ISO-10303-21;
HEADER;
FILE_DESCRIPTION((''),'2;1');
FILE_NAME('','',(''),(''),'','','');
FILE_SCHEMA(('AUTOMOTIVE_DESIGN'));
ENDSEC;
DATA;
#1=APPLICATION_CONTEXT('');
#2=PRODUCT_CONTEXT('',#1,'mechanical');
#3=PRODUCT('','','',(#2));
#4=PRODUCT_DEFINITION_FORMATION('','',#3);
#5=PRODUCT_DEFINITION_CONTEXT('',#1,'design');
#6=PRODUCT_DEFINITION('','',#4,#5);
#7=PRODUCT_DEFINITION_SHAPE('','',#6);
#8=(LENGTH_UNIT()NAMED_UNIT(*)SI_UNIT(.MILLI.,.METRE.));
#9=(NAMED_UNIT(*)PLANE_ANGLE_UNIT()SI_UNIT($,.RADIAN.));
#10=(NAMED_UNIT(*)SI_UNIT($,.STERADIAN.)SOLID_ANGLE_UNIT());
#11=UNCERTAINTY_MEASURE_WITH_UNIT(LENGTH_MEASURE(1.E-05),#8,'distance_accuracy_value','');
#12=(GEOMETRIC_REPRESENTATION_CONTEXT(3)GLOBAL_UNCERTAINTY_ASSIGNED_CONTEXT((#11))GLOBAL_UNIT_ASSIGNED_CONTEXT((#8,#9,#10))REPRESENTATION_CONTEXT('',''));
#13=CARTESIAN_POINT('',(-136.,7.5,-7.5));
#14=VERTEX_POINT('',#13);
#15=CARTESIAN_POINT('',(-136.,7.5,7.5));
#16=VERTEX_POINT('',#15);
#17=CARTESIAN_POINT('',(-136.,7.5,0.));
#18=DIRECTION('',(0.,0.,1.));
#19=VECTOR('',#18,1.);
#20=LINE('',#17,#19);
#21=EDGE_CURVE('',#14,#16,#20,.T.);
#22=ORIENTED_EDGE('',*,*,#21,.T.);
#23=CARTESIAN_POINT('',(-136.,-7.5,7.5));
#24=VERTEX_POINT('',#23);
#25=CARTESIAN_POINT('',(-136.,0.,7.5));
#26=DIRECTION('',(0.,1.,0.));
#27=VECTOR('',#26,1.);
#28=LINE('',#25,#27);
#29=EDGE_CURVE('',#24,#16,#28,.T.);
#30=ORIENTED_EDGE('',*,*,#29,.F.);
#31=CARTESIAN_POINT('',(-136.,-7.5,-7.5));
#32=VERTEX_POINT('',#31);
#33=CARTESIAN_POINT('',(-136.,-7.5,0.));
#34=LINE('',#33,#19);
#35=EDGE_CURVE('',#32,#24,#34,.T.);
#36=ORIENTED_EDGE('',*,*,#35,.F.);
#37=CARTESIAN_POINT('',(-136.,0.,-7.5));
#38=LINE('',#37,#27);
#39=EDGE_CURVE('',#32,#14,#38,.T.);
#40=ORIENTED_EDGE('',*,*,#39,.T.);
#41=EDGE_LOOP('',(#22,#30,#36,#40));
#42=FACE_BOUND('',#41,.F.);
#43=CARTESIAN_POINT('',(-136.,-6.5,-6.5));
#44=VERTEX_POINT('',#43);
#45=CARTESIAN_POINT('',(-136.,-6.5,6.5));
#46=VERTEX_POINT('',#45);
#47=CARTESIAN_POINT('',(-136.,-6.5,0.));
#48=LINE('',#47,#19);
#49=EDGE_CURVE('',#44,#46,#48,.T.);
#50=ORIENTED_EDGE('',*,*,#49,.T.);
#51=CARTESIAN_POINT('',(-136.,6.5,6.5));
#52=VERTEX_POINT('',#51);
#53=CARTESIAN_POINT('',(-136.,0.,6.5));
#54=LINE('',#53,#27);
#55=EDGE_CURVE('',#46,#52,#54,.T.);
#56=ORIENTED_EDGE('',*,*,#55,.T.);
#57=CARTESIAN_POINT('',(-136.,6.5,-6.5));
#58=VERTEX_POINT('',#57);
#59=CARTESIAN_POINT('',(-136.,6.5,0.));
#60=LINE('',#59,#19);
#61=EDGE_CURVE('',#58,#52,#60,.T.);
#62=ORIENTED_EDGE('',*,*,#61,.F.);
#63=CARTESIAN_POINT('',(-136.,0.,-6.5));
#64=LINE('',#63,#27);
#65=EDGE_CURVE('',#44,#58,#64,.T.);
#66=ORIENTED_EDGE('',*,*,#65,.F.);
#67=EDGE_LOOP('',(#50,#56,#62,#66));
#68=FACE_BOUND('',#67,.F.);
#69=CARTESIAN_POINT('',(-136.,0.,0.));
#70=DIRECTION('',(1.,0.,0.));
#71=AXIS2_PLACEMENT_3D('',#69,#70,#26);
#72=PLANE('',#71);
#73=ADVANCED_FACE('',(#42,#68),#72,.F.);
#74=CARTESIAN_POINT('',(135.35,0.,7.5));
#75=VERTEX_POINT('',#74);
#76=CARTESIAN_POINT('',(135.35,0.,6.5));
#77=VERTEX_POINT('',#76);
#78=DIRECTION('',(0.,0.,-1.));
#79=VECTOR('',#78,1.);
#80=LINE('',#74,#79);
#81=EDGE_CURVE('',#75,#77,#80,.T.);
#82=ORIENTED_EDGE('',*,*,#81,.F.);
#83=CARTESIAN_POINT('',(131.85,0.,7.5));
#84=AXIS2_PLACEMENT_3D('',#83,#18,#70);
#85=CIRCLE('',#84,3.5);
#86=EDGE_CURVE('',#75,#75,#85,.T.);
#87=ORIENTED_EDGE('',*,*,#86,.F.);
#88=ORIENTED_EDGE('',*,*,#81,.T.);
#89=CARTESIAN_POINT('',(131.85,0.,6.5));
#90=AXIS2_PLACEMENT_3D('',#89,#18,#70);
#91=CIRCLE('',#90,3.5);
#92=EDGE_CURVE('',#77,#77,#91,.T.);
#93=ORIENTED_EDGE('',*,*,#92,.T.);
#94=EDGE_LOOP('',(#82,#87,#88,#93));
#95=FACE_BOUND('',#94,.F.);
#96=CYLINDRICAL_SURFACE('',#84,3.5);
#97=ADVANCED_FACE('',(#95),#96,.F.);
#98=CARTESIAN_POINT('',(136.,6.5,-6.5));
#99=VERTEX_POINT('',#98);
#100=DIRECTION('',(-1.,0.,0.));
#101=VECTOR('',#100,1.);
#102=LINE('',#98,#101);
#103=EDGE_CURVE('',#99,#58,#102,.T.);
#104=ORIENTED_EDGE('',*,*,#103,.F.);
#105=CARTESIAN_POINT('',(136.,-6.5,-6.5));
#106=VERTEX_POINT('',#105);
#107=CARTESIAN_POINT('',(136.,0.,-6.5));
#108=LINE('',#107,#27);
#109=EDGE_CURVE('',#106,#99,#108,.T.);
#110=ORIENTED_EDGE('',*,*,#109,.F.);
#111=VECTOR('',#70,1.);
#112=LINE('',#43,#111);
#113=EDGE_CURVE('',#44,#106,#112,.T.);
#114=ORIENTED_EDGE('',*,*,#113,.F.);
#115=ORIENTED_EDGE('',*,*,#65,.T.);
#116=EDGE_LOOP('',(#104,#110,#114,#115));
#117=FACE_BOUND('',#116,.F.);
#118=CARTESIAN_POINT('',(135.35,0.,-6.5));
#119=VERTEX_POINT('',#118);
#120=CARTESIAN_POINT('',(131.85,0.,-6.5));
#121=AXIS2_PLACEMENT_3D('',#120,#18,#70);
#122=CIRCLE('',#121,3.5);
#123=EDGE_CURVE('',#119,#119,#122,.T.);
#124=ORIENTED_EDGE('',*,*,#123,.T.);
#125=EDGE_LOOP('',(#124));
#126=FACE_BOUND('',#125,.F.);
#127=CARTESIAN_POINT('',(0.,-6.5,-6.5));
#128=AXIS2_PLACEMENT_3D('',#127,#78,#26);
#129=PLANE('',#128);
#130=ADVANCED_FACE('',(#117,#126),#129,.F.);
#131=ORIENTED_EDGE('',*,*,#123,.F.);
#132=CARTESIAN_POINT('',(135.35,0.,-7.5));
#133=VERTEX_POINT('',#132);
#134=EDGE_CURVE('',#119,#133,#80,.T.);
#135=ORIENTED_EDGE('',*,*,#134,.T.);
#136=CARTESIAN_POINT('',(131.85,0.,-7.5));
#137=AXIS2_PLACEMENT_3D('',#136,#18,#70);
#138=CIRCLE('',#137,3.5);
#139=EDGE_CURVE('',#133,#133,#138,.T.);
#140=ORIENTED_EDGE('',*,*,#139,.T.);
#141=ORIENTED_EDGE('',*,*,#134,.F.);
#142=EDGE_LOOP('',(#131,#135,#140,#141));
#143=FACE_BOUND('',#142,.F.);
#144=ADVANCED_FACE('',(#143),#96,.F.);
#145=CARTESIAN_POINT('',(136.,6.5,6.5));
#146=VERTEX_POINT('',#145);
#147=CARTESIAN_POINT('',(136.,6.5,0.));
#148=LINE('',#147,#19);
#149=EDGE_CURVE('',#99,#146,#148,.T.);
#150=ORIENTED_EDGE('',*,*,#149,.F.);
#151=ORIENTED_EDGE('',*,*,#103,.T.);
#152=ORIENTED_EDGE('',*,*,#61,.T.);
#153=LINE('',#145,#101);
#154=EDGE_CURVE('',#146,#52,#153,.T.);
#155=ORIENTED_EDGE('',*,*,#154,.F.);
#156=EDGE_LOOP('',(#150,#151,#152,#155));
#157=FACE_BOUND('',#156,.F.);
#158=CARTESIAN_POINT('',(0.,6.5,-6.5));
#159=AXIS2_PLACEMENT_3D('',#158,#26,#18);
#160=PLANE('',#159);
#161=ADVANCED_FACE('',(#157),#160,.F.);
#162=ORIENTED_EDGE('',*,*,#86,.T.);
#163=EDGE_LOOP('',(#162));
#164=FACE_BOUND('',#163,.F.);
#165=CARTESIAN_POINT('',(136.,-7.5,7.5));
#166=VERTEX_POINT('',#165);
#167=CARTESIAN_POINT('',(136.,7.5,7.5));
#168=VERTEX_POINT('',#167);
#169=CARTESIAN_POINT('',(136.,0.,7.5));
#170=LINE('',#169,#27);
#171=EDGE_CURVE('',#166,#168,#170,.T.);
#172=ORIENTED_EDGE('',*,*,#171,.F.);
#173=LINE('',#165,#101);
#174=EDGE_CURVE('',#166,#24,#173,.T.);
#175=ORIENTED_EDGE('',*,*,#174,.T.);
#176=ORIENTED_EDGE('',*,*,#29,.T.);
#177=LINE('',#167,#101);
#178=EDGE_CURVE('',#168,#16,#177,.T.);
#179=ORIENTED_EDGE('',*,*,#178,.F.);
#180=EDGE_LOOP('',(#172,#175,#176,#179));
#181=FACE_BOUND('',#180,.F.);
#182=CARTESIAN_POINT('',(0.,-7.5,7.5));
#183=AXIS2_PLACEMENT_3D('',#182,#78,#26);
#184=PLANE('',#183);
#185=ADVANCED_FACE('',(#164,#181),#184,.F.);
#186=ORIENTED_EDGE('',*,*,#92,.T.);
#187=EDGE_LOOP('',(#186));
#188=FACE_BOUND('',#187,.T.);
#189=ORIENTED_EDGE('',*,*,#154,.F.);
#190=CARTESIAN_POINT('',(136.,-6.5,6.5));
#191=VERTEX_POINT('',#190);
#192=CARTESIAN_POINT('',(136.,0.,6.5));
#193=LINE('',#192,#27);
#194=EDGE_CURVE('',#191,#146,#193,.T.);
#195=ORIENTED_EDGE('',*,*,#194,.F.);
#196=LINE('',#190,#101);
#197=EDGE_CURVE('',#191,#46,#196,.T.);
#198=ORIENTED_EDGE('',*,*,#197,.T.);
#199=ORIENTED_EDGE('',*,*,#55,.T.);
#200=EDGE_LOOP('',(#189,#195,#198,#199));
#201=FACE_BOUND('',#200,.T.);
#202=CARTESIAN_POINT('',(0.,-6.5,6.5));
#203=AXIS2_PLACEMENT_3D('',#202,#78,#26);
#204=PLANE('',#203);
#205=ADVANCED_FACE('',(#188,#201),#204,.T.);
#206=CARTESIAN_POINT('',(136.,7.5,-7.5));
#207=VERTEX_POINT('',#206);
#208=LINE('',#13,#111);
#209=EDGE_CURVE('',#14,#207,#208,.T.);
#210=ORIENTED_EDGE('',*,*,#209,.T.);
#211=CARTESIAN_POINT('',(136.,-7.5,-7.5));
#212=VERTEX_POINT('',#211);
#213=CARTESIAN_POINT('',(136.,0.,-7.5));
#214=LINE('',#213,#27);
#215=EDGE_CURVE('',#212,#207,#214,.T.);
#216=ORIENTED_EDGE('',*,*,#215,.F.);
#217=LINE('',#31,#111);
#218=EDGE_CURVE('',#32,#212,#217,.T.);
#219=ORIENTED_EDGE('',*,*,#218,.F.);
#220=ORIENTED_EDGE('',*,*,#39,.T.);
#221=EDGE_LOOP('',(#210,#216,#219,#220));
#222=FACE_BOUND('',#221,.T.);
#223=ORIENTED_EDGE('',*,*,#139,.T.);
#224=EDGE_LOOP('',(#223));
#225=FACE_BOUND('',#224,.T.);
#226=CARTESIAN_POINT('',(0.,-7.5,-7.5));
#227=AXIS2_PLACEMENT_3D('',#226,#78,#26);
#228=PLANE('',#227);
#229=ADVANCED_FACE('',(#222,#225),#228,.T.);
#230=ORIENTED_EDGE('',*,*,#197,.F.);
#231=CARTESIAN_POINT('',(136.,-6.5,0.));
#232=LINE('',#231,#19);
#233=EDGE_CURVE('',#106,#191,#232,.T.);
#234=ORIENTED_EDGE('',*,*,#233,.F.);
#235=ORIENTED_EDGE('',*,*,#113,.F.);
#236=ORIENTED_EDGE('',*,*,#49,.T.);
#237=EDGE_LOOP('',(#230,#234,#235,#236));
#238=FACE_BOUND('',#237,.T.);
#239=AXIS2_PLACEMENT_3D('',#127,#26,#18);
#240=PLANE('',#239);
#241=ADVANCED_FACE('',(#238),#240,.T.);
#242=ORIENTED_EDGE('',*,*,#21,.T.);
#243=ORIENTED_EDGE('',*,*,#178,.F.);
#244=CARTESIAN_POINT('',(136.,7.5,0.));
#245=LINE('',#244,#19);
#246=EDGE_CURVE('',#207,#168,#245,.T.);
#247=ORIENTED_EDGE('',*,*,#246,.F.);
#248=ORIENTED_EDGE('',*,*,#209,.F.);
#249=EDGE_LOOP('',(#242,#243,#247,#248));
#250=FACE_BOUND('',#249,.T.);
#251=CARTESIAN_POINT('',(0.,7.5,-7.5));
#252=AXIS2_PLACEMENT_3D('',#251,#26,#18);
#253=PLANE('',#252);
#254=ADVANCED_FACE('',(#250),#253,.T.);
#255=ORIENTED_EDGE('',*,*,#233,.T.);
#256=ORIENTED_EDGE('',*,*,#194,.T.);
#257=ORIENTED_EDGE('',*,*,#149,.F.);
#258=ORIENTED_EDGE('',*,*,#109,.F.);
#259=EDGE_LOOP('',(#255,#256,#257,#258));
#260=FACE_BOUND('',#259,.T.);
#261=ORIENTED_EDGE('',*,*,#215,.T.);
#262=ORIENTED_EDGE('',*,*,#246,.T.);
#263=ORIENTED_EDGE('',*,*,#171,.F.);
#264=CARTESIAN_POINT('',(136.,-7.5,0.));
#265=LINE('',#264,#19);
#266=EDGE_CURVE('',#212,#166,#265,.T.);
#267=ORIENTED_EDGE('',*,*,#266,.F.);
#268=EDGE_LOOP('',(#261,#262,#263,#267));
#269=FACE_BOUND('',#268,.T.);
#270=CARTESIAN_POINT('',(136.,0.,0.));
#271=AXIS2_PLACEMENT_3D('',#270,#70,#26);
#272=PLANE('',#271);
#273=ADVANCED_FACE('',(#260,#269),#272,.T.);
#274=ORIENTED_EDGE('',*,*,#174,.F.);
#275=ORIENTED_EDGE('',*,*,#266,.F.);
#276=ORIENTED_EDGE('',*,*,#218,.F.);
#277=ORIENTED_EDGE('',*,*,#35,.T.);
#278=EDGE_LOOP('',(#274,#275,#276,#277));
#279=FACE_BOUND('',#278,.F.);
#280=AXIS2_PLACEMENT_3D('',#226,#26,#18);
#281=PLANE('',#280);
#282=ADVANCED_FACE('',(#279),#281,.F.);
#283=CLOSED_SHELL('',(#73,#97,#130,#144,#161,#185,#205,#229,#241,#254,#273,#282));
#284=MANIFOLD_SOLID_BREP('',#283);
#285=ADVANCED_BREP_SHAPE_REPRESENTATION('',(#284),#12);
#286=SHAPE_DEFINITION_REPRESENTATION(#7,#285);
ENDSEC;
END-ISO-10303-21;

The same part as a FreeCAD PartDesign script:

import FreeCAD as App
import Part
import Sketcher

V = App.Vector
Q = App.Units.Quantity


def add_polygon(sketch, points):
    """Adds a closed chain of lines whose ends are joined by coincident constraints."""
    first, n = sketch.GeometryCount, len(points)
    for a, b in zip(points, points[1:] + points[:1]):
        sketch.addGeometry(Part.LineSegment(App.Vector(*a, 0), App.Vector(*b, 0)), False)
    for i in range(n):
        sketch.addConstraint(Sketcher.Constraint("Coincident", first + i, 2, first + (i + 1) % n, 1))

doc = App.newDocument("Part")
body = doc.addObject("PartDesign::Body", "Body")

sketch1 = doc.addObject("Sketcher::SketchObject", "Sketch")
body.addObject(sketch1)
sketch1.AttachmentSupport = (doc.YZ_Plane, [""])
sketch1.MapMode = "FlatFace"
add_polygon(sketch1, [(-8, 8), (-8, -8), (8, -8), (8, 8)])
add_polygon(sketch1, [(6, -6), (-6, -6), (-6, 6), (6, 6)])
sketch1.addConstraint([
    Sketcher.Constraint("Vertical", 0),
    Sketcher.Constraint("Horizontal", 1),
    Sketcher.Constraint("Vertical", 2),
    Sketcher.Constraint("Horizontal", 3),
    Sketcher.Constraint("Horizontal", 4),
    Sketcher.Constraint("Vertical", 5),
    Sketcher.Constraint("Horizontal", 6),
    Sketcher.Constraint("Vertical", 7),
    Sketcher.Constraint("Symmetric", 0, 2, 2, 2, -1, 1),
    Sketcher.Constraint("Symmetric", 4, 2, 6, 2, -1, 1),
    Sketcher.Constraint("Equal", 3, 0),
    Sketcher.Constraint("Equal", 6, 5),
    Sketcher.Constraint("DistanceX", 1, 1, 1, 2, Q("15 mm")),
    Sketcher.Constraint("DistanceX", 4, 2, 4, 1, Q("13 mm")),
])
pad1 = doc.addObject("PartDesign::Pad", "Pad")
body.addObject(pad1)
pad1.Profile = sketch1
pad1.Type = "TwoLengths"
pad1.Length = 136
pad1.Length2 = 136

sketch2 = doc.addObject("Sketcher::SketchObject", "Sketch001")
body.addObject(sketch2)
sketch2.AttachmentSupport = (doc.XY_Plane, [""])
sketch2.MapMode = "FlatFace"
sketch2.AttachmentOffset = App.Placement(V(0, 0, 7.5), App.Rotation())
sketch2.addGeometry(Part.Circle(V(131.8, 0, 0), V(0, 0, 1), 3.5), False)
sketch2.addConstraint([
    Sketcher.Constraint("PointOnObject", 0, 3, -1),
    Sketcher.Constraint("Diameter", 0, Q("7 mm")),
    Sketcher.Constraint("DistanceX", -1, 1, 0, 3, Q("131.85 mm")),
])
pocket1 = doc.addObject("PartDesign::Pocket", "Pocket")
body.addObject(pocket1)
pocket1.Profile = sketch2
pocket1.Length = 25

doc.recompute()
